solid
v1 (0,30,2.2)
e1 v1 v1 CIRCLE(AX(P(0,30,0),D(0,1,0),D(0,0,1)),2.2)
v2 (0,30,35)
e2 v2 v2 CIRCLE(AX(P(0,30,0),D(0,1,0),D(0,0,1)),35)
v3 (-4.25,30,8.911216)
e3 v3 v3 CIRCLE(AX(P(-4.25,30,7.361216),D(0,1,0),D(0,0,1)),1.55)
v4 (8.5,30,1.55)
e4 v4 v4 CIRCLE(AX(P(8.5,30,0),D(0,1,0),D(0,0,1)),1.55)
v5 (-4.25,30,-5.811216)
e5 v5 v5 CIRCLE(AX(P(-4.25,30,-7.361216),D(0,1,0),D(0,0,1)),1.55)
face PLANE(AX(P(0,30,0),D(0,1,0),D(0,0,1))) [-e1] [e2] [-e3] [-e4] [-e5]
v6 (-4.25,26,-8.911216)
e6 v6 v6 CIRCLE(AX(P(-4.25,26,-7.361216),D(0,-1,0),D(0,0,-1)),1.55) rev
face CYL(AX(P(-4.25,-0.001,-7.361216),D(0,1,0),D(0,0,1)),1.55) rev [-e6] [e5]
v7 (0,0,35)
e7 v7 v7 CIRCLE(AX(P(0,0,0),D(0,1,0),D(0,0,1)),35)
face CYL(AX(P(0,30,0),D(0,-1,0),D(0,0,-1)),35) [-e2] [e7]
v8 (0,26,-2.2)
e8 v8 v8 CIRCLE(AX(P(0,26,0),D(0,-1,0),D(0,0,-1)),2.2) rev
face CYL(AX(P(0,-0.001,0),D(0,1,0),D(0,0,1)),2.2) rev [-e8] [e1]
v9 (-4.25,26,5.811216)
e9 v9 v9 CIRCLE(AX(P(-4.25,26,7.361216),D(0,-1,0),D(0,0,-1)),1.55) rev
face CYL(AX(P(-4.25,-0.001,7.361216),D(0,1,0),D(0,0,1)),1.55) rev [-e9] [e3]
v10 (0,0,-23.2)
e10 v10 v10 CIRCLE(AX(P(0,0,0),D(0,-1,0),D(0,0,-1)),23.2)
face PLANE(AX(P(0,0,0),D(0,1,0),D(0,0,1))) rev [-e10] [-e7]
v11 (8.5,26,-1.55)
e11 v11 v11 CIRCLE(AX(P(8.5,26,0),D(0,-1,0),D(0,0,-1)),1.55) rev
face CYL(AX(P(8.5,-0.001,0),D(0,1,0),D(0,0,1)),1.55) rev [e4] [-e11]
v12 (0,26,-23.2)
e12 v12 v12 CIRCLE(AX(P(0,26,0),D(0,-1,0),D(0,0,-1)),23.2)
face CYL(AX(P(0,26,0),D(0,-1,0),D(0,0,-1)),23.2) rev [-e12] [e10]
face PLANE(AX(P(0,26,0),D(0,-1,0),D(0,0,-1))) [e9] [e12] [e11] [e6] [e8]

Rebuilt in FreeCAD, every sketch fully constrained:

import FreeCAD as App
import Part
import Sketcher

V = App.Vector

doc = App.newDocument("Part")
body = doc.addObject("PartDesign::Body", "Body")

# Sketch on XZ plane
sketch1 = doc.addObject("Sketcher::SketchObject", "Sketch")
body.addObject(sketch1)
sketch1.AttachmentSupport = (doc.XZ_Plane, [""])
sketch1.MapMode = "FlatFace"
sketch1.addGeometry(Part.Circle(V(0, 0, 0), V(0, 0, 1), 35), False)
sketch1.addConstraint([
    Sketcher.Constraint("Coincident", 0, 3, -1, 1),
    Sketcher.Constraint("Diameter", 0, 70.0),
])
pad1 = doc.addObject("PartDesign::Pad", "Pad")
body.addObject(pad1)
pad1.Profile = sketch1
pad1.Length = 30
pad1.Reversed = True

# Sketch on XZ plane
sketch2 = doc.addObject("Sketcher::SketchObject", "Sketch001")
body.addObject(sketch2)
sketch2.AttachmentSupport = (doc.XZ_Plane, [""])
sketch2.MapMode = "FlatFace"
sketch2.addGeometry(Part.Circle(V(0, 0, 0), V(0, 0, 1), 23), False)
sketch2.addConstraint([
    Sketcher.Constraint("Coincident", 0, 3, -1, 1),
    Sketcher.Constraint("Diameter", 0, 46.4),
])
pocket1 = doc.addObject("PartDesign::Pocket", "Pocket")
body.addObject(pocket1)
pocket1.Profile = sketch2
pocket1.Length = 26

# Sketch on XZ plane
sketch3 = doc.addObject("Sketcher::SketchObject", "Sketch002")
body.addObject(sketch3)
sketch3.AttachmentSupport = (doc.XZ_Plane, [""])
sketch3.MapMode = "FlatFace"
sketch3.AttachmentOffset = App.Placement(V(0, 0, -30), App.Rotation())
sketch3.addGeometry(Part.Circle(V(0, 0, 0), V(0, 0, 1), 2.2), False)
sketch3.addConstraint([
    Sketcher.Constraint("Coincident", 0, 3, -1, 1),
    Sketcher.Constraint("Diameter", 0, 4.4),
])
pocket2 = doc.addObject("PartDesign::Pocket", "Pocket001")
body.addObject(pocket2)
pocket2.Profile = sketch3
pocket2.Type = "UpToFirst"
pocket2.Reversed = True

# Sketch on XZ plane
sketch4 = doc.addObject("Sketcher::SketchObject", "Sketch003")
body.addObject(sketch4)
sketch4.AttachmentSupport = (doc.XZ_Plane, [""])
sketch4.MapMode = "FlatFace"
sketch4.AttachmentOffset = App.Placement(V(0, 0, -30), App.Rotation())
sketch4.addGeometry(Part.Circle(V(8.5, 0, 0), V(0, 0, 1), 1.6), False)
sketch4.addConstraint([
    Sketcher.Constraint("PointOnObject", 0, 3, -1),
    Sketcher.Constraint("Diameter", 0, 3.1),
    Sketcher.Constraint("DistanceX", -1, 1, 0, 3, 8.5),
])
pocket3 = doc.addObject("PartDesign::Pocket", "Pocket002")
body.addObject(pocket3)
pocket3.Profile = sketch4
pocket3.Type = "UpToFirst"
pocket3.Reversed = True

# Sketch on XZ plane
sketch5 = doc.addObject("Sketcher::SketchObject", "Sketch004")
body.addObject(sketch5)
sketch5.AttachmentSupport = (doc.XZ_Plane, [""])
sketch5.MapMode = "FlatFace"
sketch5.AttachmentOffset = App.Placement(V(0, 0, -30), App.Rotation())
sketch5.addGeometry(Part.Circle(V(-4.2, 7.4, 0), V(0, 0, 1), 1.6), False)
sketch5.addConstraint([
    Sketcher.Constraint("Diameter", 0, 3.1),
    Sketcher.Constraint("DistanceX", 0, 3, -1, 1, 4.25),
    Sketcher.Constraint("DistanceY", -1, 1, 0, 3, 7.361216),
])
pocket4 = doc.addObject("PartDesign::Pocket", "Pocket003")
body.addObject(pocket4)
pocket4.Profile = sketch5
pocket4.Type = "UpToFirst"
pocket4.Reversed = True

# Sketch on XZ plane
sketch6 = doc.addObject("Sketcher::SketchObject", "Sketch005")
body.addObject(sketch6)
sketch6.AttachmentSupport = (doc.XZ_Plane, [""])
sketch6.MapMode = "FlatFace"
sketch6.AttachmentOffset = App.Placement(V(0, 0, -30), App.Rotation())
sketch6.addGeometry(Part.Circle(V(-4.2, -7.4, 0), V(0, 0, 1), 1.6), False)
sketch6.addConstraint([
    Sketcher.Constraint("Diameter", 0, 3.1),
    Sketcher.Constraint("DistanceX", 0, 3, -1, 1, 4.25),
    Sketcher.Constraint("DistanceY", 0, 3, -1, 1, 7.361216),
])
pocket5 = doc.addObject("PartDesign::Pocket", "Pocket004")
body.addObject(pocket5)
pocket5.Profile = sketch6
pocket5.Type = "UpToFirst"
pocket5.Reversed = True

doc.recompute()
